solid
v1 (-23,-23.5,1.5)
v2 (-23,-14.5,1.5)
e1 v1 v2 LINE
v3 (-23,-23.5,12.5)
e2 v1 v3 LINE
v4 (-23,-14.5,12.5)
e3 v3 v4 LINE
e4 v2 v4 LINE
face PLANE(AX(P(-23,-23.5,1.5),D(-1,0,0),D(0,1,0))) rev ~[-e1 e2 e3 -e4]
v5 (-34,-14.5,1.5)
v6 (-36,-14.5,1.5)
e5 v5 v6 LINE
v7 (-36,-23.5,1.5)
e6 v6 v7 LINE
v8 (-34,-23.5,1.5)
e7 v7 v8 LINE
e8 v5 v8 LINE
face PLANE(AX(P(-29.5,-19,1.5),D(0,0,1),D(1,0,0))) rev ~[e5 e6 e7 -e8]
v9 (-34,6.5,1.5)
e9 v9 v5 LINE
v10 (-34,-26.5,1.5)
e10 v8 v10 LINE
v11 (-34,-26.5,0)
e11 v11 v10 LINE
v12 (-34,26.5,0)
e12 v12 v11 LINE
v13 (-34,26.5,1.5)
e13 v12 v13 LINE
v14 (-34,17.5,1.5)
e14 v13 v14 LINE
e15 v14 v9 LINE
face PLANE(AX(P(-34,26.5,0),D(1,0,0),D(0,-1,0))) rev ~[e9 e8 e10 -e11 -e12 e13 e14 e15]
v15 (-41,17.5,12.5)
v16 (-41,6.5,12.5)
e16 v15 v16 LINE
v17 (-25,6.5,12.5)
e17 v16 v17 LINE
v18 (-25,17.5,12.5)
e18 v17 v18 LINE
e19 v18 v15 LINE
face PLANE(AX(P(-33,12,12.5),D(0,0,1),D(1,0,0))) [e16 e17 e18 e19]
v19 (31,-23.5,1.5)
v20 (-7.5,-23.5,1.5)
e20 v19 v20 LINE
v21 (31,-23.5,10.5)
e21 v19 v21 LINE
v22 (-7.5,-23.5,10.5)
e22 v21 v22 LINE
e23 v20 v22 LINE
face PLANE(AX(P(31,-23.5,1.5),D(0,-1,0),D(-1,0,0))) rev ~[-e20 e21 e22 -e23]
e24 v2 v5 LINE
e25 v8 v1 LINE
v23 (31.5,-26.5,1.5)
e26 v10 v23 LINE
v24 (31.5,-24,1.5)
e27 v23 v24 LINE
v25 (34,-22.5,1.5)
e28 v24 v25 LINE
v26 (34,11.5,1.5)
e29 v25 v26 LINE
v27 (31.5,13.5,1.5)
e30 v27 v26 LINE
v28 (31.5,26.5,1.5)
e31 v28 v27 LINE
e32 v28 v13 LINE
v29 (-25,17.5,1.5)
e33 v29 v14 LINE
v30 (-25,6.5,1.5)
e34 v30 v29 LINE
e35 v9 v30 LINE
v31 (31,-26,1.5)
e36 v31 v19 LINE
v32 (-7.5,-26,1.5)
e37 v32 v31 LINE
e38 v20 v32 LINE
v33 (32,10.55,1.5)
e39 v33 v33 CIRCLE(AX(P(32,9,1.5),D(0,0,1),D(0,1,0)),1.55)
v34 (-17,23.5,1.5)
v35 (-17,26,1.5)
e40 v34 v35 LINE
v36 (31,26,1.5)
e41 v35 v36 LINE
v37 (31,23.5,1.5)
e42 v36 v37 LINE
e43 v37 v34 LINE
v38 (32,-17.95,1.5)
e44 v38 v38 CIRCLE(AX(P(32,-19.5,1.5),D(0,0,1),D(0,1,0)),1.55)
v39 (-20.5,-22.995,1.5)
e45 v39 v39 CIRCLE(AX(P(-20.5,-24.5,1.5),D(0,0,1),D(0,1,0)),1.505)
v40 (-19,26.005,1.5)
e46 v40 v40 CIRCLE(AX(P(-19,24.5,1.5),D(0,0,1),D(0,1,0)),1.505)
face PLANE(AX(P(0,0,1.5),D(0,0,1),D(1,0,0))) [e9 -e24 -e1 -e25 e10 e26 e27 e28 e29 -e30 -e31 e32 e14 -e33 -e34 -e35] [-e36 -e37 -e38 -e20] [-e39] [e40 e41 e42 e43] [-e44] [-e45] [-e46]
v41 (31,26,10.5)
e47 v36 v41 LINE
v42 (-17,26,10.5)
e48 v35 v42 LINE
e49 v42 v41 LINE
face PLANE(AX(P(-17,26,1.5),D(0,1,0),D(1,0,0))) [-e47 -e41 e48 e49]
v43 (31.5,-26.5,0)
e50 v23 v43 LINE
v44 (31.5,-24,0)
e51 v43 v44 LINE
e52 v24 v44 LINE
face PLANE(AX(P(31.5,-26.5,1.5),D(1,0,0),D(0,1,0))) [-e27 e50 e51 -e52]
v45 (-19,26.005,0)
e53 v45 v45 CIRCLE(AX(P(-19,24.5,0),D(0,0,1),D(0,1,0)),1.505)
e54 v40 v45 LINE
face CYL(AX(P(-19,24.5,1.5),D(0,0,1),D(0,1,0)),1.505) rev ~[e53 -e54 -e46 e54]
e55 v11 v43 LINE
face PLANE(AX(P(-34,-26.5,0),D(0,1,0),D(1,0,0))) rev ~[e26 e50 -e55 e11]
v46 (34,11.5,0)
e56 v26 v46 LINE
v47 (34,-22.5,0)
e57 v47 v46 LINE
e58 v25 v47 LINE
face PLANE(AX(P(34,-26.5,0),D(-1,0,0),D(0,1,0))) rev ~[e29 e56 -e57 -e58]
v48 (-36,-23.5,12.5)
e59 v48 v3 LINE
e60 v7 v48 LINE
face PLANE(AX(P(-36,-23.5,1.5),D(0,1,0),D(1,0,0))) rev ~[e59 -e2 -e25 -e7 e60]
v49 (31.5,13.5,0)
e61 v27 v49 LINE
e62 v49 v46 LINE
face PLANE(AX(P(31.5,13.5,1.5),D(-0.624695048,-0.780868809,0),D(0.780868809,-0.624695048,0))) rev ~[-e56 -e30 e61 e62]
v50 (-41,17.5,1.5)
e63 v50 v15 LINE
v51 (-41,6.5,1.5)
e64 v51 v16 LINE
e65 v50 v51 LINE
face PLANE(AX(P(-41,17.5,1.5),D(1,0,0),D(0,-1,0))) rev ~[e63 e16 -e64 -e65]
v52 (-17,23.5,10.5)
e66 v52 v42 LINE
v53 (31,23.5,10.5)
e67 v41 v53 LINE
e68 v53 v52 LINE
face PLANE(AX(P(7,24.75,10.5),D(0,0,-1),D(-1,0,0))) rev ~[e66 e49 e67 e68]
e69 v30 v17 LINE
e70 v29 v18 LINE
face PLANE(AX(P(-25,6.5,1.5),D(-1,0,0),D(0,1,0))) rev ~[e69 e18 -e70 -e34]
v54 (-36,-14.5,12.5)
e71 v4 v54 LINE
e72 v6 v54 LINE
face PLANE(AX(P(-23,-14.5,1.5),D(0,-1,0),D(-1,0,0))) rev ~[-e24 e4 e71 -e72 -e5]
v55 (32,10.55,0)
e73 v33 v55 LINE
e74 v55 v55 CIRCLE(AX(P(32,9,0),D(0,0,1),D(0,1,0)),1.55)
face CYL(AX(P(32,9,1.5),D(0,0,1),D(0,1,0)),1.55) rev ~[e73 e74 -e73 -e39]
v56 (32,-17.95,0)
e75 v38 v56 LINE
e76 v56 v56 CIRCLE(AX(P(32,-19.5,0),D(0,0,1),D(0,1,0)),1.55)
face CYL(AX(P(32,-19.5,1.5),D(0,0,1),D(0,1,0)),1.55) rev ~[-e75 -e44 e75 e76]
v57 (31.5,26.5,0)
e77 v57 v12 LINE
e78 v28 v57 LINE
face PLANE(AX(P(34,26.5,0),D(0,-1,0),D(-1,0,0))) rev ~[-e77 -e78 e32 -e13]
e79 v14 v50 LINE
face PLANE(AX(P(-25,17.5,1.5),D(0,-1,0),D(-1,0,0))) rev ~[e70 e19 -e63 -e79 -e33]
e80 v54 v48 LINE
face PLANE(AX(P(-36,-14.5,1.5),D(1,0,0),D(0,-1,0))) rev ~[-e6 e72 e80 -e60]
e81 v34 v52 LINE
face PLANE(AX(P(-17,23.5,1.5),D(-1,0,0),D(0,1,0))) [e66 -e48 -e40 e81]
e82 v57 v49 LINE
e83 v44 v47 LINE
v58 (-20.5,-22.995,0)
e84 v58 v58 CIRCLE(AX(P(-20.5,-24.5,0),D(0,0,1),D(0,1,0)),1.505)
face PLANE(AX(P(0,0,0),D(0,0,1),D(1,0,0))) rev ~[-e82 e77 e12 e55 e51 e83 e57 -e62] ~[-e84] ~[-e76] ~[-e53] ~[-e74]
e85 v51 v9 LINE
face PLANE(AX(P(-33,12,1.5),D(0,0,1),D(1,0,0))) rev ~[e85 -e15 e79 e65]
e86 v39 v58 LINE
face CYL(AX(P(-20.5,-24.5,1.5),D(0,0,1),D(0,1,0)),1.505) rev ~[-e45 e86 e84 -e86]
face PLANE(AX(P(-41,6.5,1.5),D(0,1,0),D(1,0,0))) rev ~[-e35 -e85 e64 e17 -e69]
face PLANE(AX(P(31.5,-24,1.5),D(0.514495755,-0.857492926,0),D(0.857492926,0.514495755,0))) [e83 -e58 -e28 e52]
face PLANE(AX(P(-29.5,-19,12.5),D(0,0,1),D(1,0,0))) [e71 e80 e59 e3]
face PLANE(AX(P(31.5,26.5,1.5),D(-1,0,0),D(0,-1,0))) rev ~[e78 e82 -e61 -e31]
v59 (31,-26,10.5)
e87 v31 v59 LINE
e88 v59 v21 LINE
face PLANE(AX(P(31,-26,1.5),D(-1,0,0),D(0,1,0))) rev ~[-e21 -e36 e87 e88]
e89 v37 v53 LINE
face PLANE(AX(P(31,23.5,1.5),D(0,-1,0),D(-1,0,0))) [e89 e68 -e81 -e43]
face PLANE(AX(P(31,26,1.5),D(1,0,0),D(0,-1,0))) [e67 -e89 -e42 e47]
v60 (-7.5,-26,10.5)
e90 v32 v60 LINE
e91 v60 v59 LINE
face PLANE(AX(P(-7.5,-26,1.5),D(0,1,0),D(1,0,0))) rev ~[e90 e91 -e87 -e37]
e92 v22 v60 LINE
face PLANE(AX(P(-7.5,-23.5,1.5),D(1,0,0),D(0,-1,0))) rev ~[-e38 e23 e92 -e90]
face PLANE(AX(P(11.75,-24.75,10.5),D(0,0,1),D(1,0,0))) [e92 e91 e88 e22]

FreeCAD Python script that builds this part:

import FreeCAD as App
import Part
import Sketcher
from FreeCAD import Vector
Q = App.Units.Quantity

doc = App.newDocument("Part")
body = doc.addObject("PartDesign::Body", "Body")

# Sketch on XY plane
sketch1 = body.newObject("Sketcher::SketchObject", "Sketch")
sketch1.AttachmentSupport = (doc.getObject("XY_Plane"), [""])
sketch1.MapMode = "FlatFace"
sketch1.addGeometry([
    Part.LineSegment(Vector(-34, 26.5, 0), Vector(-34, -26.5, 0)),
    Part.LineSegment(Vector(-34, -26.5, 0), Vector(34, -26.5, 0)),
    Part.LineSegment(Vector(34, -26.5, 0), Vector(34, 26.5, 0)),
    Part.LineSegment(Vector(34, 26.5, 0), Vector(-34, 26.5, 0)),
], False)
sketch1.addConstraint([
    Sketcher.Constraint("Coincident", 0, 2, 1, 1),
    Sketcher.Constraint("Coincident", 1, 2, 2, 1),
    Sketcher.Constraint("Coincident", 2, 2, 3, 1),
    Sketcher.Constraint("Coincident", 3, 2, 0, 1),
    Sketcher.Constraint("Vertical", 0),
    Sketcher.Constraint("Horizontal", 1),
    Sketcher.Constraint("Vertical", 2),
    Sketcher.Constraint("Horizontal", 3),
    Sketcher.Constraint("Symmetric", 0, 2, 2, 2, -1, 1),
    Sketcher.Constraint("DistanceX", 0, 2, -1, 1, Q("34 mm")),
    Sketcher.Constraint("DistanceY", 0, 2, 0, 1, Q("53 mm")),
])
pad1 = body.newObject("PartDesign::Pad", "Pad")
pad1.Profile = sketch1
pad1.Length = 1.5

# Sketch on XY plane
sketch2 = body.newObject("Sketcher::SketchObject", "Sketch001")
sketch2.AttachmentSupport = (doc.getObject("XY_Plane"), [""])
sketch2.MapMode = "FlatFace"
sketch2.AttachmentOffset = App.Placement(Vector(0, 0, 1.5), App.Rotation())
sketch2.addGeometry([
    Part.LineSegment(Vector(34, 11.5, 0), Vector(34, 26.5, 0)),  # 0
    Part.LineSegment(Vector(34, 26.5, 0), Vector(31.5, 26.5, 0)),  # 1
    Part.LineSegment(Vector(31.5, 26.5, 0), Vector(31.5, 13.5, 0)),  # 2
    Part.LineSegment(Vector(31.5, 13.5, 0), Vector(34, 11.5, 0)),  # 3
    Part.LineSegment(Vector(31.5, -26.5, 0), Vector(34, -26.5, 0)),  # 4
    Part.LineSegment(Vector(34, -26.5, 0), Vector(34, -22.5, 0)),  # 5
    Part.LineSegment(Vector(34, -22.5, 0), Vector(31.5, -24, 0)),  # 6
    Part.LineSegment(Vector(31.5, -24, 0), Vector(31.5, -26.5, 0)),  # 7
], False)
sketch2.addConstraint([
    Sketcher.Constraint("Coincident", 0, 2, 1, 1),
    Sketcher.Constraint("Coincident", 1, 2, 2, 1),
    Sketcher.Constraint("Coincident", 2, 2, 3, 1),
    Sketcher.Constraint("Coincident", 3, 2, 0, 1),
    Sketcher.Constraint("Coincident", 4, 2, 5, 1),
    Sketcher.Constraint("Coincident", 5, 2, 6, 1),
    Sketcher.Constraint("Coincident", 6, 2, 7, 1),
    Sketcher.Constraint("Coincident", 7, 2, 4, 1),
    Sketcher.Constraint("Vertical", 0),
    Sketcher.Constraint("Horizontal", 1),
    Sketcher.Constraint("Vertical", 2),
    Sketcher.Constraint("Horizontal", 4),
    Sketcher.Constraint("Vertical", 5),
    Sketcher.Constraint("Vertical", 7),
    Sketcher.Constraint("Symmetric", 0, 2, 4, 2, -1),
    Sketcher.Constraint("Vertical", 2, 2, 6, 2),
    Sketcher.Constraint("Equal", 4, 7),
    Sketcher.Constraint("DistanceY", -1, 1, 0, 2, Q("26.5 mm")),
    Sketcher.Constraint("DistanceY", -1, 1, 3, 2, Q("11.5 mm")),
    Sketcher.Constraint("DistanceY", 2, 2, 2, 1, Q("13 mm")),
    Sketcher.Constraint("DistanceY", 5, 1, 5, 2, Q("4 mm")),
    Sketcher.Constraint("DistanceX", 1, 2, 1, 1, Q("2.5 mm")),
    Sketcher.Constraint("DistanceX", -1, 1, 0, 2, Q("34 mm")),
])
pocket1 = body.newObject("PartDesign::Pocket", "Pocket")
pocket1.Profile = sketch2
pocket1.Type = "ThroughAll"

# Sketch on XY plane
sketch3 = body.newObject("Sketcher::SketchObject", "Sketch002")
sketch3.AttachmentSupport = (doc.getObject("XY_Plane"), [""])
sketch3.MapMode = "FlatFace"
sketch3.AttachmentOffset = App.Placement(Vector(0, 0, 1.5), App.Rotation())
sketch3.addGeometry([
    Part.Circle(Vector(32, -19.5, 0), Vector(0, 0, 1), 1.55),
    Part.Circle(Vector(-20.5, -24.5, 0), Vector(0, 0, 1), 1.505),
    Part.Circle(Vector(32, 9, 0), Vector(0, 0, 1), 1.55),
    Part.Circle(Vector(-19, 24.5, 0), Vector(0, 0, 1), 1.505),
], False)
sketch3.addConstraint([
    Sketcher.Constraint("Equal", 0, 2),
    Sketcher.Constraint("Equal", 1, 3),
    Sketcher.Constraint("Vertical", 0, 3, 2, 3),
    Sketcher.Constraint("Diameter", 0, Q("3.1 mm")),
    Sketcher.Constraint("Diameter", 1, Q("3.01 mm")),
    Sketcher.Constraint("DistanceX", -1, 1, 0, 3, Q("32 mm")),
    Sketcher.Constraint("DistanceY", -1, 1, 2, 3, Q("9 mm")),
    Sketcher.Constraint("DistanceX", 3, 3, -1, 1, Q("19 mm")),
    Sketcher.Constraint("DistanceY", 1, 3, 0, 3, Q("5 mm")),
    Sketcher.Constraint("DistanceY", 1, 3, 3, 3, Q("49 mm")),
    Sketcher.Constraint("DistanceY", 0, 3, -1, 1, Q("19.5 mm")),
    Sketcher.Constraint("DistanceX", 1, 3, -1, 1, Q("20.5 mm")),
])
pocket2 = body.newObject("PartDesign::Pocket", "Pocket001")
pocket2.Profile = sketch3
pocket2.Type = "ThroughAll"

# Sketch on XY plane
sketch4 = body.newObject("Sketcher::SketchObject", "Sketch003")
sketch4.AttachmentSupport = (doc.getObject("XY_Plane"), [""])
sketch4.MapMode = "FlatFace"
sketch4.AttachmentOffset = App.Placement(Vector(0, 0, 1.5), App.Rotation())
sketch4.addGeometry([
    Part.LineSegment(Vector(-36, -23.5, 0), Vector(-23, -23.5, 0)),
    Part.LineSegment(Vector(-23, -23.5, 0), Vector(-23, -14.5, 0)),
    Part.LineSegment(Vector(-23, -14.5, 0), Vector(-36, -14.5, 0)),
    Part.LineSegment(Vector(-36, -14.5, 0), Vector(-36, -23.5, 0)),
], False)
sketch4.addConstraint([
    Sketcher.Constraint("Coincident", 0, 2, 1, 1),
    Sketcher.Constraint("Coincident", 1, 2, 2, 1),
    Sketcher.Constraint("Coincident", 2, 2, 3, 1),
    Sketcher.Constraint("Coincident", 3, 2, 0, 1),
    Sketcher.Constraint("Horizontal", 0),
    Sketcher.Constraint("Vertical", 1),
    Sketcher.Constraint("Horizontal", 2),
    Sketcher.Constraint("Vertical", 3),
    Sketcher.Constraint("DistanceY", 0, 2, -1, 1, Q("23.5 mm")),
    Sketcher.Constraint("DistanceY", 1, 2, -1, 1, Q("14.5 mm")),
    Sketcher.Constraint("DistanceX", 0, 1, 0, 2, Q("13 mm")),
    Sketcher.Constraint("DistanceX", 0, 2, -1, 1, Q("23 mm")),
])
pad2 = body.newObject("PartDesign::Pad", "Pad001")
pad2.Profile = sketch4
pad2.Length = 11

# Sketch on XY plane
sketch5 = body.newObject("Sketcher::SketchObject", "Sketch004")
sketch5.AttachmentSupport = (doc.getObject("XY_Plane"), [""])
sketch5.MapMode = "FlatFace"
sketch5.AttachmentOffset = App.Placement(Vector(0, 0, 1.5), App.Rotation())
sketch5.addGeometry([
    Part.LineSegment(Vector(-41, 6.5, 0), Vector(-25, 6.5, 0)),
    Part.LineSegment(Vector(-25, 6.5, 0), Vector(-25, 17.5, 0)),
    Part.LineSegment(Vector(-25, 17.5, 0), Vector(-41, 17.5, 0)),
    Part.LineSegment(Vector(-41, 17.5, 0), Vector(-41, 6.5, 0)),
], False)
sketch5.addConstraint([
    Sketcher.Constraint("Coincident", 0, 2, 1, 1),
    Sketcher.Constraint("Coincident", 1, 2, 2, 1),
    Sketcher.Constraint("Coincident", 2, 2, 3, 1),
    Sketcher.Constraint("Coincident", 3, 2, 0, 1),
    Sketcher.Constraint("Horizontal", 0),
    Sketcher.Constraint("Vertical", 1),
    Sketcher.Constraint("Horizontal", 2),
    Sketcher.Constraint("Vertical", 3),
    Sketcher.Constraint("DistanceY", -1, 1, 0, 2, Q("6.5 mm")),
    Sketcher.Constraint("DistanceX", 0, 1, 0, 2, Q("16 mm")),
    Sketcher.Constraint("DistanceY", 1, 1, 1, 2, Q("11 mm")),
    Sketcher.Constraint("DistanceX", 0, 2, -1, 1, Q("25 mm")),
])
pad3 = body.newObject("PartDesign::Pad", "Pad002")
pad3.Profile = sketch5
pad3.Length = 11

# Sketch on XY plane
sketch6 = body.newObject("Sketcher::SketchObject", "Sketch005")
sketch6.AttachmentSupport = (doc.getObject("XY_Plane"), [""])
sketch6.MapMode = "FlatFace"
sketch6.AttachmentOffset = App.Placement(Vector(0, 0, 1.5), App.Rotation())
sketch6.addGeometry([
    Part.LineSegment(Vector(-7.5, -26, 0), Vector(31, -26, 0)),  # 0
    Part.LineSegment(Vector(31, -26, 0), Vector(31, -23.5, 0)),  # 1
    Part.LineSegment(Vector(31, -23.5, 0), Vector(-7.5, -23.5, 0)),  # 2
    Part.LineSegment(Vector(-7.5, -23.5, 0), Vector(-7.5, -26, 0)),  # 3
    Part.LineSegment(Vector(-17, 26, 0), Vector(-17, 23.5, 0)),  # 4
    Part.LineSegment(Vector(-17, 23.5, 0), Vector(31, 23.5, 0)),  # 5
    Part.LineSegment(Vector(31, 23.5, 0), Vector(31, 26, 0)),  # 6
    Part.LineSegment(Vector(31, 26, 0), Vector(-17, 26, 0)),  # 7
], False)
sketch6.addConstraint([
    Sketcher.Constraint("Coincident", 0, 2, 1, 1),
    Sketcher.Constraint("Coincident", 1, 2, 2, 1),
    Sketcher.Constraint("Coincident", 2, 2, 3, 1),
    Sketcher.Constraint("Coincident", 3, 2, 0, 1),
    Sketcher.Constraint("Coincident", 4, 2, 5, 1),
    Sketcher.Constraint("Coincident", 5, 2, 6, 1),
    Sketcher.Constraint("Coincident", 6, 2, 7, 1),
    Sketcher.Constraint("Coincident", 7, 2, 4, 1),
    Sketcher.Constraint("Horizontal", 0),
    Sketcher.Constraint("Vertical", 1),
    Sketcher.Constraint("Horizontal", 2),
    Sketcher.Constraint("Vertical", 3),
    Sketcher.Constraint("Vertical", 4),
    Sketcher.Constraint("Horizontal", 5),
    Sketcher.Constraint("Vertical", 6),
    Sketcher.Constraint("Horizontal", 7),
    Sketcher.Constraint("Symmetric", 1, 2, 5, 2, -1),
    Sketcher.Constraint("Equal", 3, 4),
    Sketcher.Constraint("DistanceY", 0, 2, -1, 1, Q("26 mm")),
    Sketcher.Constraint("DistanceY", 1, 2, -1, 1, Q("23.5 mm")),
    Sketcher.Constraint("DistanceX", 5, 1, 5, 2, Q("48 mm")),
    Sketcher.Constraint("DistanceX", 0, 1, 0, 2, Q("38.5 mm")),
    Sketcher.Constraint("DistanceX", -1, 1, 0, 2, Q("31 mm")),
])
pad4 = body.newObject("PartDesign::Pad", "Pad003")
pad4.Profile = sketch6
pad4.Length = 9

doc.recompute()
